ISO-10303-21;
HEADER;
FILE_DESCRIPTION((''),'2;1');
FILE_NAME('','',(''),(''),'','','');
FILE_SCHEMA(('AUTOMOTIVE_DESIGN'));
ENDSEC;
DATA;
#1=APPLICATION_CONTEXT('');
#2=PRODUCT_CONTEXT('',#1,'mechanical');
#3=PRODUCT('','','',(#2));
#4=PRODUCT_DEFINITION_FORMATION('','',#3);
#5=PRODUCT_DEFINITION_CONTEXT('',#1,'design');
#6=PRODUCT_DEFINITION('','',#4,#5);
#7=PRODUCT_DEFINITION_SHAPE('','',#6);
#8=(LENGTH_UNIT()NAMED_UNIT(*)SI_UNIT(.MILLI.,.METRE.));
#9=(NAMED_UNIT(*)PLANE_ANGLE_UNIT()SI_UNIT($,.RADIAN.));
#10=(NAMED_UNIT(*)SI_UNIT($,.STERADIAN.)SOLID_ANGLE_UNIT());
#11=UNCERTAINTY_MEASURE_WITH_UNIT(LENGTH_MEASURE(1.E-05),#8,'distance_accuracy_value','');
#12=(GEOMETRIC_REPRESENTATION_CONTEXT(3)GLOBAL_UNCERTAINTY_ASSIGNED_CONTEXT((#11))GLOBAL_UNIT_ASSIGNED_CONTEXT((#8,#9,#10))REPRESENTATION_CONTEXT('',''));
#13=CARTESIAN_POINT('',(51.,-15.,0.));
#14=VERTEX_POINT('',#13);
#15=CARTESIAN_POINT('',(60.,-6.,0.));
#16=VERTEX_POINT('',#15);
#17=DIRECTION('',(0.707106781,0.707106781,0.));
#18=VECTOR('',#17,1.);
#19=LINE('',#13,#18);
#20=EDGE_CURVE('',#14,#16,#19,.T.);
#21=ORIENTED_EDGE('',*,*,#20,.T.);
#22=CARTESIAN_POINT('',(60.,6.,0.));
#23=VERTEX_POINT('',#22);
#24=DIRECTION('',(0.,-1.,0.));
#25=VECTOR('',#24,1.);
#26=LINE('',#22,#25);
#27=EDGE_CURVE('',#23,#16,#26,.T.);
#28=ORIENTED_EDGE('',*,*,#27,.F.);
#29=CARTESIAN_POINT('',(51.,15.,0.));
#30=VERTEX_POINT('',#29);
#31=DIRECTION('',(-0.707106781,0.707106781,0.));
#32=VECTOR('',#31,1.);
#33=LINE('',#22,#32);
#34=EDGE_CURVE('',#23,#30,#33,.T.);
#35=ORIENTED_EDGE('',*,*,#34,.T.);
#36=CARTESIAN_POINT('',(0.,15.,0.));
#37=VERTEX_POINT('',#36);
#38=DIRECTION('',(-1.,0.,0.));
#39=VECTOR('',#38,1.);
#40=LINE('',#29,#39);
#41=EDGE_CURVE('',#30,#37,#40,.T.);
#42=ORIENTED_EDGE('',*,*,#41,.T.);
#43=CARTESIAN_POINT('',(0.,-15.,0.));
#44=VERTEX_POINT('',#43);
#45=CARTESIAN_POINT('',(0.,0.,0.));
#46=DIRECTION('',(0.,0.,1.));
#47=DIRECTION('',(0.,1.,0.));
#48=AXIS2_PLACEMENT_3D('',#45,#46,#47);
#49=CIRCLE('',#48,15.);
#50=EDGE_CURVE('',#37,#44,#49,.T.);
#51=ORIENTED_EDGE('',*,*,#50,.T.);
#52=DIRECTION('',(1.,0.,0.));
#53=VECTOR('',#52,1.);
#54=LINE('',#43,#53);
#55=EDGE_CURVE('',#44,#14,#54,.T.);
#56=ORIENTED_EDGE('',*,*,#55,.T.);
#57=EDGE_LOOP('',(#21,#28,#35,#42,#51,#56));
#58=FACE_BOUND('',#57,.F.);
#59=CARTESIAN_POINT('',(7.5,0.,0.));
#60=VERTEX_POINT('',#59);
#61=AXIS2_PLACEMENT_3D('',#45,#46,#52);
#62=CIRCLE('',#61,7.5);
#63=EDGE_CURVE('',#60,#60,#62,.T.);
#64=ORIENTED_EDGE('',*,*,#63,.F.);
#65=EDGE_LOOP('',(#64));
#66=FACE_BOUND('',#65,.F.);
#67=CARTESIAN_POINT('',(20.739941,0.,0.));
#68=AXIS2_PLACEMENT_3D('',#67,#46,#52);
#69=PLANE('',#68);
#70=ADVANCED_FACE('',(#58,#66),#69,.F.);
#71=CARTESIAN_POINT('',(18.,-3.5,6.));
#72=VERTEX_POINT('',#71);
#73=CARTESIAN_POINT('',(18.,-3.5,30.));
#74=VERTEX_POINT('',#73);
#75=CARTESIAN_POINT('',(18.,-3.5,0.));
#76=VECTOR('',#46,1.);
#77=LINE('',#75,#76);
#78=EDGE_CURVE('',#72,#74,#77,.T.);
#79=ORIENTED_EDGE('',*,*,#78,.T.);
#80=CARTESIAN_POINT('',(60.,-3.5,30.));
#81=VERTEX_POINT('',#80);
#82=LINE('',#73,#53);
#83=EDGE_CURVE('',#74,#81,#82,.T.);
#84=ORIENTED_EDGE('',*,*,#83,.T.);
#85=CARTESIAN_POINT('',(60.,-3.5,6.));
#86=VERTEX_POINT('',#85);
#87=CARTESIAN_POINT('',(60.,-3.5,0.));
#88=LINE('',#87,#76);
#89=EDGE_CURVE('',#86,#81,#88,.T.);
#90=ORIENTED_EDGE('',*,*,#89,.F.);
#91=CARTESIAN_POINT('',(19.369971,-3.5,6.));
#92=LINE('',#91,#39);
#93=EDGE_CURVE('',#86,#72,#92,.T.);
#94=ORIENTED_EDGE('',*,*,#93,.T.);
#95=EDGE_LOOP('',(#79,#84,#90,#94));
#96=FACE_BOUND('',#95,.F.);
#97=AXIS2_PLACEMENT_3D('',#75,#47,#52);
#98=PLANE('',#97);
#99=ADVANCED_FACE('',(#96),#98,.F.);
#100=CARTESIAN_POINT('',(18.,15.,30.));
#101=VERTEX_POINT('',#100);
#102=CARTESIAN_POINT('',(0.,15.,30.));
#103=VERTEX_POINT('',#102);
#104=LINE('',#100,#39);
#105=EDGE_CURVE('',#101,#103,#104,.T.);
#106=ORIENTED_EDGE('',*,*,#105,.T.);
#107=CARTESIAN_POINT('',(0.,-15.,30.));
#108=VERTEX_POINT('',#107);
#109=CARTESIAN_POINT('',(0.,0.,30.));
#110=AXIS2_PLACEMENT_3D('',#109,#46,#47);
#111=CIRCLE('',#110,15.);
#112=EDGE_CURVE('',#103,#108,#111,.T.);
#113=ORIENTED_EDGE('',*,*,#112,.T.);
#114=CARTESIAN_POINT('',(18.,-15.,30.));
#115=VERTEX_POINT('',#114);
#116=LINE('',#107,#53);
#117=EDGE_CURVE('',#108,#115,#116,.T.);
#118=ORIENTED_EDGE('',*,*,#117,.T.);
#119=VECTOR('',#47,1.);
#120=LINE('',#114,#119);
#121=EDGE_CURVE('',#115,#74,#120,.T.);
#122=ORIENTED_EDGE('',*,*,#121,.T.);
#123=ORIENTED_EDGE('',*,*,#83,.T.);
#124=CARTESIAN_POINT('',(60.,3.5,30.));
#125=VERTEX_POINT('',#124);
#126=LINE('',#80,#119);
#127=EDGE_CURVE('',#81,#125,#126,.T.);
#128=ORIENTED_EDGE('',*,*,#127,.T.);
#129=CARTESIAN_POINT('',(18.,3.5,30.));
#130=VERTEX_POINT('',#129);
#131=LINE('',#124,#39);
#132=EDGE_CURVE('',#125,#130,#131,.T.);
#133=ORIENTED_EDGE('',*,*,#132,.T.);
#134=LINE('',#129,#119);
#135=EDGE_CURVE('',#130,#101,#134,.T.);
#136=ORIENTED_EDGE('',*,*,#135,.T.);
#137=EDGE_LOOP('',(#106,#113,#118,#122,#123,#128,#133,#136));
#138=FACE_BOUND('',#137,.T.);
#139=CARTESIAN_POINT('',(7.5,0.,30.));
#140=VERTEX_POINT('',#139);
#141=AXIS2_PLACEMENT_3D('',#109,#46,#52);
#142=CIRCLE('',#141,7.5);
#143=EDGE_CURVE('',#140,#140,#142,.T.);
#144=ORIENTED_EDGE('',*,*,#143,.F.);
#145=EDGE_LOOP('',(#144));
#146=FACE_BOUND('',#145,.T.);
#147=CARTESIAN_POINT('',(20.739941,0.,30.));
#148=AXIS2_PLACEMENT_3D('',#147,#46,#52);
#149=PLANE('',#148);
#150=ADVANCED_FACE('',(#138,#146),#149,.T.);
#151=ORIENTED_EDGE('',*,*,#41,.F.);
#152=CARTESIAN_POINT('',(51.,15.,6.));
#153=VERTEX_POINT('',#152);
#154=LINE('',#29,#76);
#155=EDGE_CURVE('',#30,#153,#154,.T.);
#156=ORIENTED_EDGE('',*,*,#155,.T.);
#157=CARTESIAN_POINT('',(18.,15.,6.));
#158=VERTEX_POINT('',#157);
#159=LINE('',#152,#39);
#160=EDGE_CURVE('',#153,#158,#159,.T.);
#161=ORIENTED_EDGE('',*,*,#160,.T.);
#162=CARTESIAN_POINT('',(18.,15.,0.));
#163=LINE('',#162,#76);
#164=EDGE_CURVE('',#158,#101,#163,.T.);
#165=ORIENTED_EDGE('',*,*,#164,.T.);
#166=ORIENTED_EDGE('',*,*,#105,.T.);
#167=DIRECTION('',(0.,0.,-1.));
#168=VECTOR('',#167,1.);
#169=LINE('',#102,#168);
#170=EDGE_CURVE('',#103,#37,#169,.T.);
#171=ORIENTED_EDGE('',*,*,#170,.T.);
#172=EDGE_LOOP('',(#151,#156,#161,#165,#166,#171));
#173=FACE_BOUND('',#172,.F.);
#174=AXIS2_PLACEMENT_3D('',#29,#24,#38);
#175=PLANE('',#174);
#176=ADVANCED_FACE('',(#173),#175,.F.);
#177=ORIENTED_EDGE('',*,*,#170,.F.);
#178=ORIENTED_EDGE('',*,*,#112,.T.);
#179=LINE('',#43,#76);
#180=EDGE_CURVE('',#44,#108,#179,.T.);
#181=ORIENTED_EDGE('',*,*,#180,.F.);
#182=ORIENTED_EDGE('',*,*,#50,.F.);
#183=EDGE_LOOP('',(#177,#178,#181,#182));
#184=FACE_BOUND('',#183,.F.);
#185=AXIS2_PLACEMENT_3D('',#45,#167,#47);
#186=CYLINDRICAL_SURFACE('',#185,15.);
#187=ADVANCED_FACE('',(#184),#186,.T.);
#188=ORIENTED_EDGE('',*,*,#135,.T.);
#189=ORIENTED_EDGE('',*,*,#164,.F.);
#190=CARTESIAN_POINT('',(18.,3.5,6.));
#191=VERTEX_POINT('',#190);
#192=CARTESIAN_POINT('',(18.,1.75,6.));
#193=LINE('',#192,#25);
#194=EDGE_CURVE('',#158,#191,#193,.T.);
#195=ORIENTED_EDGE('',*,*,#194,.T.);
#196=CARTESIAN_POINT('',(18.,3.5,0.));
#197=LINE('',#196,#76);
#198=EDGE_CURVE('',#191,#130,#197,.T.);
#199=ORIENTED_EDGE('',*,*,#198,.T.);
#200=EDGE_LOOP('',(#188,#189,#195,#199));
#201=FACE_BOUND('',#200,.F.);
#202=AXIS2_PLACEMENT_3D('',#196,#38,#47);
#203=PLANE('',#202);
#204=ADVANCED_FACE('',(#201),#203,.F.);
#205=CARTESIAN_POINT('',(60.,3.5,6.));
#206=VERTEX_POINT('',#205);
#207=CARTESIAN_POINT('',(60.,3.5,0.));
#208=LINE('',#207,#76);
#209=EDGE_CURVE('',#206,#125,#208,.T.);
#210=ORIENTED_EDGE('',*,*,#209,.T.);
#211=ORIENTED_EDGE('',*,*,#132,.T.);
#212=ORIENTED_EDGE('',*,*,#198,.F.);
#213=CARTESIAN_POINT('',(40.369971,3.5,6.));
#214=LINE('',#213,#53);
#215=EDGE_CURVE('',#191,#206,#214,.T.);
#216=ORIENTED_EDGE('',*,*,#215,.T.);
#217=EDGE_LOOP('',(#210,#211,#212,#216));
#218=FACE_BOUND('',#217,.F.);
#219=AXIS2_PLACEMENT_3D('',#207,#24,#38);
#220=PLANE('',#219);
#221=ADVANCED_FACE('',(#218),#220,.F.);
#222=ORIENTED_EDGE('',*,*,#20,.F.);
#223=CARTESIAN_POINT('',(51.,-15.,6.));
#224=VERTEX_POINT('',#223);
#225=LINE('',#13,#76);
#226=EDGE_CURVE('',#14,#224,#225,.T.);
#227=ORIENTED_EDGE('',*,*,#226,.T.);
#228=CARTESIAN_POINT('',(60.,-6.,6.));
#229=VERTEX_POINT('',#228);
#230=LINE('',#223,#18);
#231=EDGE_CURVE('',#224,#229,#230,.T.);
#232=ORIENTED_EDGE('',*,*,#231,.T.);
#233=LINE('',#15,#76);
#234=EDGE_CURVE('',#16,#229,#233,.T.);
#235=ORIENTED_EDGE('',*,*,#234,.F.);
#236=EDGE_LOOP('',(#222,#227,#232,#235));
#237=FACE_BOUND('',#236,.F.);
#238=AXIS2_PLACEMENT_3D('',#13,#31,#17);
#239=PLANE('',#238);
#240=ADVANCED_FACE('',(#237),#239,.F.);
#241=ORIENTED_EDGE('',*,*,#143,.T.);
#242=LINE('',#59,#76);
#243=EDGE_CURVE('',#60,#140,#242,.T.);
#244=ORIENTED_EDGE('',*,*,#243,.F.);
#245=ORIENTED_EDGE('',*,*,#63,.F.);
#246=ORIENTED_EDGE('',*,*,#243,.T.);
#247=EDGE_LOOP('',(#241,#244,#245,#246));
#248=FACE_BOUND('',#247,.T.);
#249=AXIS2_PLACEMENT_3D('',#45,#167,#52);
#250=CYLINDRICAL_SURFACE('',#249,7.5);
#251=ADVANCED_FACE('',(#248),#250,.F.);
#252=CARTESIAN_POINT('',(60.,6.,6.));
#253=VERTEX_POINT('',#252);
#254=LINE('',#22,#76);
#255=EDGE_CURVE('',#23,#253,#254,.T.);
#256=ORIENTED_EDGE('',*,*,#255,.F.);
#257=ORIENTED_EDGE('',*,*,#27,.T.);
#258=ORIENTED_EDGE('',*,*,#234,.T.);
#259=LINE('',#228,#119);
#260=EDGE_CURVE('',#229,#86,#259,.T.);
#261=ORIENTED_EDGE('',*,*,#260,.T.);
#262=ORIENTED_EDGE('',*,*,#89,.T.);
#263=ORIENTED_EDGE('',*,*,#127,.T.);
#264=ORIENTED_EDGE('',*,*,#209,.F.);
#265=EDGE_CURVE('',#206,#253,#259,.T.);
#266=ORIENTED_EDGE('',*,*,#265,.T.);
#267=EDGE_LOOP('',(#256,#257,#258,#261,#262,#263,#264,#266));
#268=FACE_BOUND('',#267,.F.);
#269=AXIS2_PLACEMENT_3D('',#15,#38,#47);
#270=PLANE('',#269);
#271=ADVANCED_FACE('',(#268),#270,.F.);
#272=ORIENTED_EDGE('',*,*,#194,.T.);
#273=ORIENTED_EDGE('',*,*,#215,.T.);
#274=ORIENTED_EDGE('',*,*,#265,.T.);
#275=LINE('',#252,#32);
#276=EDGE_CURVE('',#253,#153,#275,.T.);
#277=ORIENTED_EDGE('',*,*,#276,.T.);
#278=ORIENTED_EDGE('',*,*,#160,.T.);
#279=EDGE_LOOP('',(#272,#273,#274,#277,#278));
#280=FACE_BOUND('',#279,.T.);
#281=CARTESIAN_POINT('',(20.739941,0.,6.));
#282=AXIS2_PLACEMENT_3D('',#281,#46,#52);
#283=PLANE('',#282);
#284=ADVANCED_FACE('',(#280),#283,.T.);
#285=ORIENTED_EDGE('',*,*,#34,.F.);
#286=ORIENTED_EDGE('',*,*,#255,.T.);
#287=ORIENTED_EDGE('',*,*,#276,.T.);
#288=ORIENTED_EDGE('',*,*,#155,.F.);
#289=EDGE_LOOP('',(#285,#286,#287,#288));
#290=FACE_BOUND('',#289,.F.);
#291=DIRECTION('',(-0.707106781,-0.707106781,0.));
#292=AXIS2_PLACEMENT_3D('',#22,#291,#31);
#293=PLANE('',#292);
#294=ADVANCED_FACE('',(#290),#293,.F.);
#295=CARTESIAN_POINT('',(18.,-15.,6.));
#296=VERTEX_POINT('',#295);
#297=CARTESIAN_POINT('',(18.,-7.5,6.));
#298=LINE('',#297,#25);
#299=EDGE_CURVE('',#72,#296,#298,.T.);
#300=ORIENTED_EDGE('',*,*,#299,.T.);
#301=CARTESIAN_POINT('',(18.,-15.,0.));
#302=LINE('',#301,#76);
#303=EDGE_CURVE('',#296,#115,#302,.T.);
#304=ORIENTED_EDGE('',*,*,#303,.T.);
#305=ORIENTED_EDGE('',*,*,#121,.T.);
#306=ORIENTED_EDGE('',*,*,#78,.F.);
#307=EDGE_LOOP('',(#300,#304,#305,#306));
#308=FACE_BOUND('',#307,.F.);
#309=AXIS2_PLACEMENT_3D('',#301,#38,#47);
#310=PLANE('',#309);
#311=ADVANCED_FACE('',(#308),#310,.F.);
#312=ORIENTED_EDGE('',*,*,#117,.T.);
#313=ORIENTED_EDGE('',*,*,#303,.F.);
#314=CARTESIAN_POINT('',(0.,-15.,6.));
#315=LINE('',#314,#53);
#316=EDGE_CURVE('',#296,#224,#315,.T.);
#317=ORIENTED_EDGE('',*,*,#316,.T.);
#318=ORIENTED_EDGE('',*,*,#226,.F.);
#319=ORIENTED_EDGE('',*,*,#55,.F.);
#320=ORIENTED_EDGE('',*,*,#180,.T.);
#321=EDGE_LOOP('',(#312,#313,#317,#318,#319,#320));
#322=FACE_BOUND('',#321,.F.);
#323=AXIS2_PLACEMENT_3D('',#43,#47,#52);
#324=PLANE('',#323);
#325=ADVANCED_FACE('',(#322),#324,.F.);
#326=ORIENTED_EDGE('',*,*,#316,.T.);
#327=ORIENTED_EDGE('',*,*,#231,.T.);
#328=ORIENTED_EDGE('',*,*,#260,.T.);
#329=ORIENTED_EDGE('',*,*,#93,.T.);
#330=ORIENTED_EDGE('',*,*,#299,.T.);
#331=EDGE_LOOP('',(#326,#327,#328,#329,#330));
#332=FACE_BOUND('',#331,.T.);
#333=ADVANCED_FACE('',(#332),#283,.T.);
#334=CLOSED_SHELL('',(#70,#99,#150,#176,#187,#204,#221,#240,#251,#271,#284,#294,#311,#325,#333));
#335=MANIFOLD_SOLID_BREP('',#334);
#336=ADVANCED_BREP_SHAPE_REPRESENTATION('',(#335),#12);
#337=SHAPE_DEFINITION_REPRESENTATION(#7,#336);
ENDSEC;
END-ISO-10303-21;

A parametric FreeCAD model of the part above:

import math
import FreeCAD as App
import Part
import Sketcher
from FreeCAD import Vector

doc = App.newDocument("Part")
params = doc.addObject("Spreadsheet::Sheet", "Params")
for row, (alias, value) in enumerate([
    ("sketch1_diameter", "15 mm"),
    ("sketch1_radius", "15 mm"),
    ("sketch1_width", "51 mm"),
    ("sketch1_height", "12 mm"),
    ("pad1_length", "6 mm"),
    ("sketch2_diameter", "15 mm"),
    ("sketch2_radius", "15 mm"),
    ("sketch2_width", "18 mm"),
    ("sketch2_width2", "42 mm"),
    ("sketch2_height", "7 mm"),
    ("pad2_length", "30 mm"),
], start=1):
    params.set(f"A{row}", alias)
    params.set(f"B{row}", "=" + value)
    params.setAlias(f"B{row}", alias)

body = doc.addObject("PartDesign::Body", "Body")

# Sketch on XY plane
sketch1 = body.newObject("Sketcher::SketchObject", "Sketch")
sketch1.AttachmentSupport = (doc.getObject("XY_Plane"), [""])
sketch1.MapMode = "FlatFace"
sketch1.addGeometry(Part.ArcOfCircle(Part.Circle(Vector(0, 0, 0), Vector(0, 0, 1), 15), math.radians(90), math.radians(270)), False)
sketch1.addGeometry(Part.LineSegment(Vector(0, -15, 0), Vector(51, -15, 0)), False)
sketch1.addGeometry(Part.LineSegment(Vector(51, -15, 0), Vector(60, -6, 0)), False)
sketch1.addGeometry(Part.LineSegment(Vector(60, -6, 0), Vector(60, 6, 0)), False)
sketch1.addGeometry(Part.LineSegment(Vector(60, 6, 0), Vector(51, 15, 0)), False)
sketch1.addGeometry(Part.LineSegment(Vector(51, 15, 0), Vector(0, 15, 0)), False)
sketch1.addGeometry(Part.Circle(Vector(0, 0, 0), Vector(0, 0, 1), 7.5), False)
sketch1.addConstraint(Sketcher.Constraint("Tangent", 0, 2, 1, 1))
sketch1.addConstraint(Sketcher.Constraint("Coincident", 1, 2, 2, 1))
sketch1.addConstraint(Sketcher.Constraint("Coincident", 2, 2, 3, 1))
sketch1.addConstraint(Sketcher.Constraint("Coincident", 3, 2, 4, 1))
sketch1.addConstraint(Sketcher.Constraint("Coincident", 4, 2, 5, 1))
sketch1.addConstraint(Sketcher.Constraint("Tangent", 5, 2, 0, 1))
sketch1.addConstraint(Sketcher.Constraint("Horizontal", 1))
sketch1.addConstraint(Sketcher.Constraint("Vertical", 3))
sketch1.addConstraint(Sketcher.Constraint("Horizontal", 5))
sketch1.addConstraint(Sketcher.Constraint("Coincident", 0, 3, -1, 1))
sketch1.addConstraint(Sketcher.Constraint("Coincident", 6, 3, -1, 1))
sketch1.addConstraint(Sketcher.Constraint("Perpendicular", 2, 4))
sketch1.addConstraint(Sketcher.Constraint("Vertical", 1, 2, 4, 2))
sketch1.addConstraint(Sketcher.Constraint("Equal", 2, 4))
sketch1.addConstraint(Sketcher.Constraint("Diameter", 6, 15.0))
sketch1.addConstraint(Sketcher.Constraint("Radius", 0, 15.0))
sketch1.addConstraint(Sketcher.Constraint("DistanceX", 1, 1, 1, 2, 51.0))
sketch1.addConstraint(Sketcher.Constraint("DistanceY", 3, 1, 3, 2, 12.0))
sketch1.setExpression("Constraints[14]", "Params.sketch1_diameter")
sketch1.setExpression("Constraints[15]", "Params.sketch1_radius")
sketch1.setExpression("Constraints[16]", "Params.sketch1_width")
sketch1.setExpression("Constraints[17]", "Params.sketch1_height")
pad1 = body.newObject("PartDesign::Pad", "Pad")
pad1.Profile = sketch1
pad1.setExpression("Length", "Params.pad1_length")

# Sketch on XY plane
sketch2 = body.newObject("Sketcher::SketchObject", "Sketch001")
sketch2.AttachmentSupport = (doc.getObject("XY_Plane"), [""])
sketch2.MapMode = "FlatFace"
sketch2.addGeometry(Part.LineSegment(Vector(18, 15, 0), Vector(0, 15, 0)), False)
sketch2.addGeometry(Part.ArcOfCircle(Part.Circle(Vector(0, 0, 0), Vector(0, 0, 1), 15), math.radians(90), math.radians(270)), False)
sketch2.addGeometry(Part.LineSegment(Vector(0, -15, 0), Vector(18, -15, 0)), False)
sketch2.addGeometry(Part.LineSegment(Vector(18, -15, 0), Vector(18, -3.5, 0)), False)
sketch2.addGeometry(Part.LineSegment(Vector(18, -3.5, 0), Vector(60, -3.5, 0)), False)
sketch2.addGeometry(Part.LineSegment(Vector(60, -3.5, 0), Vector(60, 3.5, 0)), False)
sketch2.addGeometry(Part.LineSegment(Vector(60, 3.5, 0), Vector(18, 3.5, 0)), False)
sketch2.addGeometry(Part.LineSegment(Vector(18, 3.5, 0), Vector(18, 15, 0)), False)
sketch2.addGeometry(Part.Circle(Vector(0, 0, 0), Vector(0, 0, 1), 7.5), False)
sketch2.addConstraint(Sketcher.Constraint("Tangent", 0, 2, 1, 1))
sketch2.addConstraint(Sketcher.Constraint("Tangent", 1, 2, 2, 1))
sketch2.addConstraint(Sketcher.Constraint("Coincident", 2, 2, 3, 1))
sketch2.addConstraint(Sketcher.Constraint("Coincident", 3, 2, 4, 1))
sketch2.addConstraint(Sketcher.Constraint("Coincident", 4, 2, 5, 1))
sketch2.addConstraint(Sketcher.Constraint("Coincident", 5, 2, 6, 1))
sketch2.addConstraint(Sketcher.Constraint("Coincident", 6, 2, 7, 1))
sketch2.addConstraint(Sketcher.Constraint("Coincident", 7, 2, 0, 1))
sketch2.addConstraint(Sketcher.Constraint("Horizontal", 0))
sketch2.addConstraint(Sketcher.Constraint("Horizontal", 2))
sketch2.addConstraint(Sketcher.Constraint("Vertical", 3))
sketch2.addConstraint(Sketcher.Constraint("Horizontal", 4))
sketch2.addConstraint(Sketcher.Constraint("Vertical", 5))
sketch2.addConstraint(Sketcher.Constraint("Horizontal", 6))
sketch2.addConstraint(Sketcher.Constraint("Vertical", 7))
sketch2.addConstraint(Sketcher.Constraint("Coincident", 1, 3, -1, 1))
sketch2.addConstraint(Sketcher.Constraint("Coincident", 8, 3, -1, 1))
sketch2.addConstraint(Sketcher.Constraint("Symmetric", 3, 2, 6, 2, -1))
sketch2.addConstraint(Sketcher.Constraint("Diameter", 8, 15.0))
sketch2.addConstraint(Sketcher.Constraint("Radius", 1, 15.0))
sketch2.addConstraint(Sketcher.Constraint("DistanceX", 0, 2, 0, 1, 18.0))
sketch2.addConstraint(Sketcher.Constraint("DistanceX", 4, 1, 4, 2, 42.0))
sketch2.addConstraint(Sketcher.Constraint("DistanceY", 5, 1, 5, 2, 7.0))
sketch2.setExpression("Constraints[18]", "Params.sketch2_diameter")
sketch2.setExpression("Constraints[19]", "Params.sketch2_radius")
sketch2.setExpression("Constraints[20]", "Params.sketch2_width")
sketch2.setExpression("Constraints[21]", "Params.sketch2_width2")
sketch2.setExpression("Constraints[22]", "Params.sketch2_height")
pad2 = body.newObject("PartDesign::Pad", "Pad001")
pad2.Profile = sketch2
pad2.setExpression("Length", "Params.pad2_length")

doc.recompute()
